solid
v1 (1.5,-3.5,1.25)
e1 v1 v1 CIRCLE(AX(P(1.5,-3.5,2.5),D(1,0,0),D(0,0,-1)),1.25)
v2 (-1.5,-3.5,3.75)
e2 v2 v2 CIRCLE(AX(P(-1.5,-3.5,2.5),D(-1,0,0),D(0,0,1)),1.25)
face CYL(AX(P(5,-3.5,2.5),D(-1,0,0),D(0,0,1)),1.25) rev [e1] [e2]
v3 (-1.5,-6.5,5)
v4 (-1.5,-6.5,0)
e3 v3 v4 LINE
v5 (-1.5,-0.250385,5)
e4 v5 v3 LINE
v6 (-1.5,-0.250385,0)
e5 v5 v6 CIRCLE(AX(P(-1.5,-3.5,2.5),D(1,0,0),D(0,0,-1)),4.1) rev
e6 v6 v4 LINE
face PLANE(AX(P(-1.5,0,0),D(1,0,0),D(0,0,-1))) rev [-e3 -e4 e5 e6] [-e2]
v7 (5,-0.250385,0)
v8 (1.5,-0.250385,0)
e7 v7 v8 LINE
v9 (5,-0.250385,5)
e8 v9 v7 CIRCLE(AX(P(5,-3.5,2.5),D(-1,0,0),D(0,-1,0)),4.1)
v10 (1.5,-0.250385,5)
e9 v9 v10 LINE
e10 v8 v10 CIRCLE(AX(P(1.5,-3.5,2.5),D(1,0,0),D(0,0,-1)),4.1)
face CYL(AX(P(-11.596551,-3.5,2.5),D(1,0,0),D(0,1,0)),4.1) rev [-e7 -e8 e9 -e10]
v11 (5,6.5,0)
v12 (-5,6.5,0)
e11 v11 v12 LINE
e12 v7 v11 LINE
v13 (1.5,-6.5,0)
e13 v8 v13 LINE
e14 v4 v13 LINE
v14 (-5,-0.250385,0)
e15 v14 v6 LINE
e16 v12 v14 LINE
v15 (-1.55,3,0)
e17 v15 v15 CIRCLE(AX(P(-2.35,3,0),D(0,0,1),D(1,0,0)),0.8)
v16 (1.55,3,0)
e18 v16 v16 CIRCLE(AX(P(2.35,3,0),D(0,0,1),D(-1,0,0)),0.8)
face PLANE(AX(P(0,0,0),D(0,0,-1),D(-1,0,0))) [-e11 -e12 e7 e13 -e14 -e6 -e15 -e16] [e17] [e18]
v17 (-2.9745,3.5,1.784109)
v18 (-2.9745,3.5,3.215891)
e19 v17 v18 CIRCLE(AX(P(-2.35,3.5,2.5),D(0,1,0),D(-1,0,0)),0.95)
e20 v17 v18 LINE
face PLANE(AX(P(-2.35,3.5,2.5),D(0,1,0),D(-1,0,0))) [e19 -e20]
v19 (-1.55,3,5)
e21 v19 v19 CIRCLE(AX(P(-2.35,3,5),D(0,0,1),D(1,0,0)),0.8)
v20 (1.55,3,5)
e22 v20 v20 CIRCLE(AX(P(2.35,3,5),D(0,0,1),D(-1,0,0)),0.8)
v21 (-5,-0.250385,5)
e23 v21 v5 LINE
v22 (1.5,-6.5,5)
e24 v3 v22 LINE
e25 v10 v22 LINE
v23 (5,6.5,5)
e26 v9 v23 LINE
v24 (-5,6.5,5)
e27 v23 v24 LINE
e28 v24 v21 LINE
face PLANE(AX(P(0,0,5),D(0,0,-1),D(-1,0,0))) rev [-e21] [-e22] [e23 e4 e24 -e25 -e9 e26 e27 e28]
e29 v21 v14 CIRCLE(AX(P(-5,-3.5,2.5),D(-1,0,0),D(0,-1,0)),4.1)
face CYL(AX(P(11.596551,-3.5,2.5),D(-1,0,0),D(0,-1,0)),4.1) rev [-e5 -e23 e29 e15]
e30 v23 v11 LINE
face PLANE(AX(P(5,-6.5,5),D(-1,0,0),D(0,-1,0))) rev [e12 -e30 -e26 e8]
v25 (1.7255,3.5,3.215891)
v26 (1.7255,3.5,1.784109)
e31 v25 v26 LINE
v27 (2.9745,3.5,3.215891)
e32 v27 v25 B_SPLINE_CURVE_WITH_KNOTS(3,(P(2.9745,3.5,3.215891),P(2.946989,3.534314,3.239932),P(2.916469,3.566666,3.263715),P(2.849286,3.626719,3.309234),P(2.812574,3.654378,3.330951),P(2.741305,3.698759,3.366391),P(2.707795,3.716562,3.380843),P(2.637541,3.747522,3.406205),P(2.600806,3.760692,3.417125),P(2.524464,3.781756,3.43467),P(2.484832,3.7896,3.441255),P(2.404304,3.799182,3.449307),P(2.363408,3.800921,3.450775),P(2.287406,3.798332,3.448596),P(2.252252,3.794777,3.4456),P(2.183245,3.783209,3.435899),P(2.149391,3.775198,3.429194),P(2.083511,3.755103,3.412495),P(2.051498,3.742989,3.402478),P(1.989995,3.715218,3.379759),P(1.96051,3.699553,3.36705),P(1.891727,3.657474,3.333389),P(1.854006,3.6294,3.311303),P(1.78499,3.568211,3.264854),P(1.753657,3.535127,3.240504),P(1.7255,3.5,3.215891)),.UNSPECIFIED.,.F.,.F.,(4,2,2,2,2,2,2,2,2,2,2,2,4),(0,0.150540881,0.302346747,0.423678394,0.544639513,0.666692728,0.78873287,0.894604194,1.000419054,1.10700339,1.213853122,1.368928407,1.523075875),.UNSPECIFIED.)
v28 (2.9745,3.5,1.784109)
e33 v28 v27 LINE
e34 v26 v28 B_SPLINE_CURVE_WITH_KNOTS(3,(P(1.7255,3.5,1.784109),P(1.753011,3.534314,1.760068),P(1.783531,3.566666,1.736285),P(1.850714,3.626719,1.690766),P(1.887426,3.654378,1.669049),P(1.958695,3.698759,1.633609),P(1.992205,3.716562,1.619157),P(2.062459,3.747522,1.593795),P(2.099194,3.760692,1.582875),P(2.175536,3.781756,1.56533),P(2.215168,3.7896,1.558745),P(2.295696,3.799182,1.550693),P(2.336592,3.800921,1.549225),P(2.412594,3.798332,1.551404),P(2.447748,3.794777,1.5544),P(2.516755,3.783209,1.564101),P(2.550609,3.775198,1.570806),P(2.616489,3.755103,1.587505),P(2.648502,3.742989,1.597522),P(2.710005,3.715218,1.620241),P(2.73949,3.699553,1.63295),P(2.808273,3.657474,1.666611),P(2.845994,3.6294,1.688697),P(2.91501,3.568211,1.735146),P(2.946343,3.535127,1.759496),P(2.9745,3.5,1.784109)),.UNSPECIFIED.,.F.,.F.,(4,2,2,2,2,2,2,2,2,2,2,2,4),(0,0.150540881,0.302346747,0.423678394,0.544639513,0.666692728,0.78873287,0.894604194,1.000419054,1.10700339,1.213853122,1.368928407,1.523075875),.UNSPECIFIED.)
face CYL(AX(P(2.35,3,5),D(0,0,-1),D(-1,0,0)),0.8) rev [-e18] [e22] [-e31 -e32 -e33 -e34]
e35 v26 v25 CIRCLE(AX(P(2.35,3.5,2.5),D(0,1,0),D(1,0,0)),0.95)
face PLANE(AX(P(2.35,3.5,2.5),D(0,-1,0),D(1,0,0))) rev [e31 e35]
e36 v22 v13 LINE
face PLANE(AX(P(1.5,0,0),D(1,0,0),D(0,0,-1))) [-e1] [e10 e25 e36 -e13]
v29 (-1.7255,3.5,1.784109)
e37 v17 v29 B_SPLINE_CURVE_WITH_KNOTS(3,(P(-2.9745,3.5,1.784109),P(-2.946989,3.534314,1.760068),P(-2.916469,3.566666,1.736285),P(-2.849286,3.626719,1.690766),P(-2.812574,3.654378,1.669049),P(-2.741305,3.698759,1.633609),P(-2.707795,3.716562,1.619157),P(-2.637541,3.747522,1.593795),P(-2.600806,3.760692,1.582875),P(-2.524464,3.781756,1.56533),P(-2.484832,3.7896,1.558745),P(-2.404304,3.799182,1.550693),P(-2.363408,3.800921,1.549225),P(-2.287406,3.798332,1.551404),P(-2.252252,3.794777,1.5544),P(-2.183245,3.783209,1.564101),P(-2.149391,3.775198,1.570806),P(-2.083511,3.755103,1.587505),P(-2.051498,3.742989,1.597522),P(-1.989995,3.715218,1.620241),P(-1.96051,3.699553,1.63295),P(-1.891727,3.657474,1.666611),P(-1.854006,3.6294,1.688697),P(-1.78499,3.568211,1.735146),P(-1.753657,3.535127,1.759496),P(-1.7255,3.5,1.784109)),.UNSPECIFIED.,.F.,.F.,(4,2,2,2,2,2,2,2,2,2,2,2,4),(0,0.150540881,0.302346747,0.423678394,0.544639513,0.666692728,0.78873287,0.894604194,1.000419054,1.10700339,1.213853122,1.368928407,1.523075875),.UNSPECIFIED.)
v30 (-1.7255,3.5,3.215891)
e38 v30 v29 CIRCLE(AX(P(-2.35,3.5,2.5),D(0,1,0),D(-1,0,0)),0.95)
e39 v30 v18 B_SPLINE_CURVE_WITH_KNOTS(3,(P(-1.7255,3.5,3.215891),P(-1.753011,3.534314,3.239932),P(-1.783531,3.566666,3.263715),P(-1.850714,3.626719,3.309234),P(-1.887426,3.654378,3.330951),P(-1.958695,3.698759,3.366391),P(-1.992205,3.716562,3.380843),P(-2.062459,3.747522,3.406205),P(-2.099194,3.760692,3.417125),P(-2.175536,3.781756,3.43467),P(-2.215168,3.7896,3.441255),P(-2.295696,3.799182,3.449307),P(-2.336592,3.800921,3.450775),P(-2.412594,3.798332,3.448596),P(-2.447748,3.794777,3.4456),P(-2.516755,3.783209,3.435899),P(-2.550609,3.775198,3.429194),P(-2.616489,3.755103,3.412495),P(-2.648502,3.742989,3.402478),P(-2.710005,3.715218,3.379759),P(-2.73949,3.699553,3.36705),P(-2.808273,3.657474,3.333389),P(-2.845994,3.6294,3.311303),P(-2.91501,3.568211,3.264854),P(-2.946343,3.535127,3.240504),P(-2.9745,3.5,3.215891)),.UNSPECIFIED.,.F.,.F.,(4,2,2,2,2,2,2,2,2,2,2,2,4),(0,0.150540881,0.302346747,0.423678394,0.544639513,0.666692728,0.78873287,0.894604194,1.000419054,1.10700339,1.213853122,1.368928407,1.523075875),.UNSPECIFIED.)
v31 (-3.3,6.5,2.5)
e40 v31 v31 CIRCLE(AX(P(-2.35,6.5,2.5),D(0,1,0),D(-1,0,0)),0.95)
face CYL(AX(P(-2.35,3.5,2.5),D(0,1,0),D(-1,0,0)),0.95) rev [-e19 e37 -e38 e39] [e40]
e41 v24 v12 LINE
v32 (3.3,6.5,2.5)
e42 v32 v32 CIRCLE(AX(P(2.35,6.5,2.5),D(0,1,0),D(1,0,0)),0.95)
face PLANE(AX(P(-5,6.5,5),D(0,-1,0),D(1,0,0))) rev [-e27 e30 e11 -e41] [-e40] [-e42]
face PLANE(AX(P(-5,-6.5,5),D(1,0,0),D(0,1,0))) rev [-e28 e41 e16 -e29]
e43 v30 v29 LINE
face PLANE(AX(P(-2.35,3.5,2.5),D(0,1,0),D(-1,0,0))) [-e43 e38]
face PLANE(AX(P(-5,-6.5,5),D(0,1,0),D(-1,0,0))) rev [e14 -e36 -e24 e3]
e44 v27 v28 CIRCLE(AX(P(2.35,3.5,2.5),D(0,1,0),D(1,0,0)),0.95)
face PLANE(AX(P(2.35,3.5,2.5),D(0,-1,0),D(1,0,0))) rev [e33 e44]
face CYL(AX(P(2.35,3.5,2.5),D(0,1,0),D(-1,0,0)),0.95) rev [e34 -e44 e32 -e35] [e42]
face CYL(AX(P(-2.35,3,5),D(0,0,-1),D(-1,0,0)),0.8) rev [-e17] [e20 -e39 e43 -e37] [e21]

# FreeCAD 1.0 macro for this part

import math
import FreeCAD as App
import Part
import Sketcher

doc = App.newDocument("Part")
body = doc.addObject("PartDesign::Body", "Body")

# Sketch on XY plane
sketch1 = doc.addObject("Sketcher::SketchObject", "Sketch")
body.addObject(sketch1)
sketch1.AttachmentSupport = (doc.XY_Plane, [""])
sketch1.MapMode = "FlatFace"
sketch1.addGeometry(Part.LineSegment(App.Vector(-5, 6.5, 0), App.Vector(-5, -6.5, 0)), False)
sketch1.addGeometry(Part.LineSegment(App.Vector(-5, -6.5, 0), App.Vector(5, -6.5, 0)), False)
sketch1.addGeometry(Part.LineSegment(App.Vector(5, -6.5, 0), App.Vector(5, 6.5, 0)), False)
sketch1.addGeometry(Part.LineSegment(App.Vector(5, 6.5, 0), App.Vector(-5, 6.5, 0)), False)
sketch1.addGeometry(Part.Circle(App.Vector(-2.4, 3, 0), App.Vector(0, 0, 1), 0.8), False)
sketch1.addGeometry(Part.Circle(App.Vector(2.4, 3, 0), App.Vector(0, 0, 1), 0.8), False)
sketch1.addConstraint(Sketcher.Constraint("Coincident", 0, 2, 1, 1))
sketch1.addConstraint(Sketcher.Constraint("Coincident", 1, 2, 2, 1))
sketch1.addConstraint(Sketcher.Constraint("Coincident", 2, 2, 3, 1))
sketch1.addConstraint(Sketcher.Constraint("Coincident", 3, 2, 0, 1))
sketch1.addConstraint(Sketcher.Constraint("Vertical", 0))
sketch1.addConstraint(Sketcher.Constraint("Horizontal", 1))
sketch1.addConstraint(Sketcher.Constraint("Vertical", 2))
sketch1.addConstraint(Sketcher.Constraint("Horizontal", 3))
sketch1.addConstraint(Sketcher.Constraint("Equal", 4, 5))
sketch1.addConstraint(Sketcher.Constraint("Symmetric", 0, 2, 2, 2, -1, 1))
sketch1.addConstraint(Sketcher.Constraint("Symmetric", 4, 3, 5, 3, -2))
sketch1.addConstraint(Sketcher.Constraint("Diameter", 4, 1.6))
sketch1.addConstraint(Sketcher.Constraint("DistanceX", 1, 1, 1, 2, 10.0))
sketch1.addConstraint(Sketcher.Constraint("DistanceY", 0, 2, 0, 1, 13.0))
sketch1.addConstraint(Sketcher.Constraint("DistanceY", -1, 1, 4, 3, 3.0))
sketch1.addConstraint(Sketcher.Constraint("DistanceX", 4, 3, 5, 3, 4.7))
pad1 = doc.addObject("PartDesign::Pad", "Pad")
body.addObject(pad1)
pad1.Profile = sketch1
pad1.Length = 5

# Sketch on YZ plane
sketch2 = doc.addObject("Sketcher::SketchObject", "Sketch001")
body.addObject(sketch2)
sketch2.AttachmentSupport = (doc.YZ_Plane, [""])
sketch2.MapMode = "FlatFace"
sketch2.AttachmentOffset = App.Placement(App.Vector(0, 0, -5), App.Rotation())
sketch2.addGeometry(Part.LineSegment(App.Vector(-3.5, -1.6, 0), App.Vector(-7.6, -1.6, 0)), False)
sketch2.addGeometry(Part.LineSegment(App.Vector(-7.6, -1.6, 0), App.Vector(-7.6, 6.6, 0)), False)
sketch2.addGeometry(Part.LineSegment(App.Vector(-7.6, 6.6, 0), App.Vector(-3.5, 6.6, 0)), False)
sketch2.addGeometry(Part.ArcOfCircle(Part.Circle(App.Vector(-3.5, 2.5, 0), App.Vector(0, 0, 1), 4.1), math.radians(-90), math.radians(90)), False)
sketch2.addConstraint(Sketcher.Constraint("Coincident", 0, 2, 1, 1))
sketch2.addConstraint(Sketcher.Constraint("Coincident", 1, 2, 2, 1))
sketch2.addConstraint(Sketcher.Constraint("Tangent", 2, 2, 3, 2))
sketch2.addConstraint(Sketcher.Constraint("Tangent", 3, 1, 0, 1))
sketch2.addConstraint(Sketcher.Constraint("Horizontal", 0))
sketch2.addConstraint(Sketcher.Constraint("Vertical", 1))
sketch2.addConstraint(Sketcher.Constraint("Horizontal", 2))
sketch2.addConstraint(Sketcher.Constraint("Radius", 3, 4.1))
sketch2.addConstraint(Sketcher.Constraint("DistanceX", 0, 2, 0, 1, 4.1))
sketch2.addConstraint(Sketcher.Constraint("DistanceX", 3, 3, -1, 1, 3.5))
sketch2.addConstraint(Sketcher.Constraint("DistanceY", -1, 1, 3, 3, 2.5))
pocket1 = doc.addObject("PartDesign::Pocket", "Pocket")
body.addObject(pocket1)
pocket1.Profile = sketch2
pocket1.Length = 3.5
pocket1.Reversed = True
doc.recompute()

mirrored = doc.addObject("PartDesign::Mirrored", "Mirrored")
body.addObject(mirrored)
mirrored.Originals = [pocket1]
mirrored.MirrorPlane = (doc.YZ_Plane, [""])
body.Tip = mirrored

# Sketch on YZ plane
sketch3 = doc.addObject("Sketcher::SketchObject", "Sketch002")
body.addObject(sketch3)
sketch3.AttachmentSupport = (doc.YZ_Plane, [""])
sketch3.MapMode = "FlatFace"
sketch3.AttachmentOffset = App.Placement(App.Vector(0, 0, -1.5), App.Rotation())
sketch3.addGeometry(Part.Circle(App.Vector(-3.5, 2.5, 0), App.Vector(0, 0, 1), 1.2), False)
sketch3.addConstraint(Sketcher.Constraint("Diameter", 0, 2.5))
sketch3.addConstraint(Sketcher.Constraint("DistanceX", 0, 3, -1, 1, 3.5))
sketch3.addConstraint(Sketcher.Constraint("DistanceY", -1, 1, 0, 3, 2.5))
pocket2 = doc.addObject("PartDesign::Pocket", "Pocket001")
body.addObject(pocket2)
pocket2.Profile = sketch3
pocket2.Type = "ThroughAll"
pocket2.Reversed = True

# Sketch on XZ plane
sketch4 = doc.addObject("Sketcher::SketchObject", "Sketch003")
body.addObject(sketch4)
sketch4.AttachmentSupport = (doc.XZ_Plane, [""])
sketch4.MapMode = "FlatFace"
sketch4.AttachmentOffset = App.Placement(App.Vector(0, 0, -6.5), App.Rotation())
sketch4.addGeometry(Part.Circle(App.Vector(-2.4, 2.5, 0), App.Vector(0, 0, 1), 0.9), False)
sketch4.addGeometry(Part.Circle(App.Vector(2.4, 2.5, 0), App.Vector(0, 0, 1), 0.9), False)
sketch4.addConstraint(Sketcher.Constraint("Equal", 0, 1))
sketch4.addConstraint(Sketcher.Constraint("Symmetric", 0, 3, 1, 3, -2))
sketch4.addConstraint(Sketcher.Constraint("Diameter", 0, 1.9))
sketch4.addConstraint(Sketcher.Constraint("DistanceY", -1, 1, 0, 3, 2.5))
sketch4.addConstraint(Sketcher.Constraint("DistanceX", 0, 3, 1, 3, 4.7))
pocket3 = doc.addObject("PartDesign::Pocket", "Pocket002")
body.addObject(pocket3)
pocket3.Profile = sketch4
pocket3.Length = 3
pocket3.Reversed = True

doc.recompute()
